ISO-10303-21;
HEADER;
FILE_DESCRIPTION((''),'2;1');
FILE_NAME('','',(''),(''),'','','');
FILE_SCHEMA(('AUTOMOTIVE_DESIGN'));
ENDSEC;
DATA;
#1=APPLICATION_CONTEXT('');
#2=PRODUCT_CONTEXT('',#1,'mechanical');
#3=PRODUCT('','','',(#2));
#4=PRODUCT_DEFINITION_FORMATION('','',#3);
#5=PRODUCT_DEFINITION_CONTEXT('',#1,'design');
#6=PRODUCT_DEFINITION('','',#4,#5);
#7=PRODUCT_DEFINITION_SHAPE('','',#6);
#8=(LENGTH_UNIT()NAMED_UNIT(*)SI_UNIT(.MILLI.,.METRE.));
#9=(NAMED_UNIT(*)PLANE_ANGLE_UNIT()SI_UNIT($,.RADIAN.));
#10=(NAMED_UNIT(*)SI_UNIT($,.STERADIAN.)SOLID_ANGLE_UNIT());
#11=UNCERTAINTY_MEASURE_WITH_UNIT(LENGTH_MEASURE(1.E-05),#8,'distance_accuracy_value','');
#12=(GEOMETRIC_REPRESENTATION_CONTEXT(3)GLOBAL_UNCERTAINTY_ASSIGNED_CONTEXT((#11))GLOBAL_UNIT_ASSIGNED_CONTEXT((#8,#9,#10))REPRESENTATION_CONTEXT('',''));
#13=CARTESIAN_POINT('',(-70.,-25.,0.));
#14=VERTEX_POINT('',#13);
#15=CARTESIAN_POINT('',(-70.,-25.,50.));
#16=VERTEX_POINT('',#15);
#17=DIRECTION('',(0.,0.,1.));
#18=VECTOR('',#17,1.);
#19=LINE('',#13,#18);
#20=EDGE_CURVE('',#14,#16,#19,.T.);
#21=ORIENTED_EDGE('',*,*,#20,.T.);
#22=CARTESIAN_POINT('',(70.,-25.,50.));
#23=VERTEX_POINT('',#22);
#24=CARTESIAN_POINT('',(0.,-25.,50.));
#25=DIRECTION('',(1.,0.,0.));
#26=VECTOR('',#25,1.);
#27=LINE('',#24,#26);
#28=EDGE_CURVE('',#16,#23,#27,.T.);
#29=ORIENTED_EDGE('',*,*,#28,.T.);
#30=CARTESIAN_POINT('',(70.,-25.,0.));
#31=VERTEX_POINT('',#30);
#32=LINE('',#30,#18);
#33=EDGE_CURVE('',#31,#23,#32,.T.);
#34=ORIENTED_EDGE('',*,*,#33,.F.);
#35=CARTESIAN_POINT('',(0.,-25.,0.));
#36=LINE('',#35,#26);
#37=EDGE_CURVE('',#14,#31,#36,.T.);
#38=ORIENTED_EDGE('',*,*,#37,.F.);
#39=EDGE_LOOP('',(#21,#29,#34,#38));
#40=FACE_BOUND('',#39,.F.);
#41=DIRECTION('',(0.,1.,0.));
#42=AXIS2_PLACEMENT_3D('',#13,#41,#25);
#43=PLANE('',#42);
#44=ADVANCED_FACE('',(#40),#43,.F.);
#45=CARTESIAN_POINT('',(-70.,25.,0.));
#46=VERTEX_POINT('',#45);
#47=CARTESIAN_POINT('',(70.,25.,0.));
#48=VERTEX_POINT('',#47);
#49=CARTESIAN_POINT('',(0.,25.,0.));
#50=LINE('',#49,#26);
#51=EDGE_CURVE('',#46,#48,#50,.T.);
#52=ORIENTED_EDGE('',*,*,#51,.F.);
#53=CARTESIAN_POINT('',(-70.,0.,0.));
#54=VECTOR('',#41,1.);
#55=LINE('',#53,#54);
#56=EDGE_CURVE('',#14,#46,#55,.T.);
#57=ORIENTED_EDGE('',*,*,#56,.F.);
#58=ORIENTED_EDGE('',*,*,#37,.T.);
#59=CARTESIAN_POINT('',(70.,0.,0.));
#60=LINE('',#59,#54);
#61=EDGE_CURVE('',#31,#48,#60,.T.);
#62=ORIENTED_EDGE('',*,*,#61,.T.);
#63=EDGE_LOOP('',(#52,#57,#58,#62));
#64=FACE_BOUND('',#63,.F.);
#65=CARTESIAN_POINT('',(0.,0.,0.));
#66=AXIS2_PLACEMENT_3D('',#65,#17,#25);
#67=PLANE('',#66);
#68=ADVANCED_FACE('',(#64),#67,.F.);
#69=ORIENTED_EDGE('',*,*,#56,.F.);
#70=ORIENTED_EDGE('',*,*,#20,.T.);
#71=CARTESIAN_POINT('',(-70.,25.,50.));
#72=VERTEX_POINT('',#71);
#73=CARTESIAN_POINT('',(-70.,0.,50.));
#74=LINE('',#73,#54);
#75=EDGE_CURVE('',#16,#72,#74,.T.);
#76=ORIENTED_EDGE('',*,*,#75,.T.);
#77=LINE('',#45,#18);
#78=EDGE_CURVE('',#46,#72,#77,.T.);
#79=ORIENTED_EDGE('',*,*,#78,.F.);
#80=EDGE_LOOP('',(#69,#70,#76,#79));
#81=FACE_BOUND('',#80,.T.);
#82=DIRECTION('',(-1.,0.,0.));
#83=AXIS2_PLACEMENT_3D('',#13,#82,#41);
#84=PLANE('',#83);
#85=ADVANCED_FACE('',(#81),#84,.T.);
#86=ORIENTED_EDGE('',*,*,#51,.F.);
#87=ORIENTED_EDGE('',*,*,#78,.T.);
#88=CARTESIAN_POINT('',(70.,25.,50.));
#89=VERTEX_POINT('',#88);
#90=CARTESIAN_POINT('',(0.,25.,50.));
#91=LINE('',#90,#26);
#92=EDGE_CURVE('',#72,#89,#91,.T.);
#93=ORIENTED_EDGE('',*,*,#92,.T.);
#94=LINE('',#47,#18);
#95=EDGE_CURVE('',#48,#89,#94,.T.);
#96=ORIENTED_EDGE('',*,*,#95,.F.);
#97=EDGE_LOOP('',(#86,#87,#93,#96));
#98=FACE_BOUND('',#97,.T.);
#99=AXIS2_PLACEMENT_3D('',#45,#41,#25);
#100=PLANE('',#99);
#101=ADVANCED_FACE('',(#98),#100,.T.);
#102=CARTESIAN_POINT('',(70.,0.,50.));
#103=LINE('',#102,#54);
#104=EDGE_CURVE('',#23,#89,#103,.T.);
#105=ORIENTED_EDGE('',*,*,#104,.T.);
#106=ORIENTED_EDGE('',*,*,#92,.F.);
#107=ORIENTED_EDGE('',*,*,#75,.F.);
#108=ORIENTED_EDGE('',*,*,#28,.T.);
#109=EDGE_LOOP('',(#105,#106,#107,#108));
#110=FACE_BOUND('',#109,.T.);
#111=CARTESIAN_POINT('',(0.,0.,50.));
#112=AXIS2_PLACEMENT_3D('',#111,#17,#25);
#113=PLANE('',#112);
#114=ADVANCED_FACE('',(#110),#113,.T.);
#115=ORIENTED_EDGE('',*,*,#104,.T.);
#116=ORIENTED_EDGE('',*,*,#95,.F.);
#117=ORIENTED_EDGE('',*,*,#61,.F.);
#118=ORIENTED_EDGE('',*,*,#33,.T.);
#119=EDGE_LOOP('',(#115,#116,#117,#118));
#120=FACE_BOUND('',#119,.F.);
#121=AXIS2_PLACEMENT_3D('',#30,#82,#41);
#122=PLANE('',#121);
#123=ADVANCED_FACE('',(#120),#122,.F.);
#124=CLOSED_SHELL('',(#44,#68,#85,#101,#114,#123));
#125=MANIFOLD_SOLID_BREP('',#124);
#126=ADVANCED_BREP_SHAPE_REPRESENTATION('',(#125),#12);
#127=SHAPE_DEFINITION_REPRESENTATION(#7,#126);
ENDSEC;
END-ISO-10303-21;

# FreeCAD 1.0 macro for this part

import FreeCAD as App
import Part
import Sketcher
from FreeCAD import Vector
Q = App.Units.Quantity

doc = App.newDocument("Part")
body = doc.addObject("PartDesign::Body", "Body")

# Sketch on XY plane
sketch1 = body.newObject("Sketcher::SketchObject", "Sketch")
sketch1.AttachmentSupport = (doc.getObject("XY_Plane"), [""])
sketch1.MapMode = "FlatFace"
sketch1.addGeometry(Part.LineSegment(Vector(-70, 25, 0), Vector(-70, -25, 0)), False)
sketch1.addGeometry(Part.LineSegment(Vector(-70, -25, 0), Vector(70, -25, 0)), False)
sketch1.addGeometry(Part.LineSegment(Vector(70, -25, 0), Vector(70, 25, 0)), False)
sketch1.addGeometry(Part.LineSegment(Vector(70, 25, 0), Vector(-70, 25, 0)), False)
sketch1.addConstraint(Sketcher.Constraint("Coincident", 0, 2, 1, 1))
sketch1.addConstraint(Sketcher.Constraint("Coincident", 1, 2, 2, 1))
sketch1.addConstraint(Sketcher.Constraint("Coincident", 2, 2, 3, 1))
sketch1.addConstraint(Sketcher.Constraint("Coincident", 3, 2, 0, 1))
sketch1.addConstraint(Sketcher.Constraint("Vertical", 0))
sketch1.addConstraint(Sketcher.Constraint("Horizontal", 1))
sketch1.addConstraint(Sketcher.Constraint("Vertical", 2))
sketch1.addConstraint(Sketcher.Constraint("Horizontal", 3))
sketch1.addConstraint(Sketcher.Constraint("Symmetric", 0, 2, 2, 2, -1, 1))
sketch1.addConstraint(Sketcher.Constraint("DistanceX", 1, 1, 1, 2, Q("140 mm")))
sketch1.addConstraint(Sketcher.Constraint("DistanceY", 0, 2, 0, 1, Q("50 mm")))
pad1 = body.newObject("PartDesign::Pad", "Pad")
pad1.Profile = sketch1
pad1.Length = 50

doc.recompute()
